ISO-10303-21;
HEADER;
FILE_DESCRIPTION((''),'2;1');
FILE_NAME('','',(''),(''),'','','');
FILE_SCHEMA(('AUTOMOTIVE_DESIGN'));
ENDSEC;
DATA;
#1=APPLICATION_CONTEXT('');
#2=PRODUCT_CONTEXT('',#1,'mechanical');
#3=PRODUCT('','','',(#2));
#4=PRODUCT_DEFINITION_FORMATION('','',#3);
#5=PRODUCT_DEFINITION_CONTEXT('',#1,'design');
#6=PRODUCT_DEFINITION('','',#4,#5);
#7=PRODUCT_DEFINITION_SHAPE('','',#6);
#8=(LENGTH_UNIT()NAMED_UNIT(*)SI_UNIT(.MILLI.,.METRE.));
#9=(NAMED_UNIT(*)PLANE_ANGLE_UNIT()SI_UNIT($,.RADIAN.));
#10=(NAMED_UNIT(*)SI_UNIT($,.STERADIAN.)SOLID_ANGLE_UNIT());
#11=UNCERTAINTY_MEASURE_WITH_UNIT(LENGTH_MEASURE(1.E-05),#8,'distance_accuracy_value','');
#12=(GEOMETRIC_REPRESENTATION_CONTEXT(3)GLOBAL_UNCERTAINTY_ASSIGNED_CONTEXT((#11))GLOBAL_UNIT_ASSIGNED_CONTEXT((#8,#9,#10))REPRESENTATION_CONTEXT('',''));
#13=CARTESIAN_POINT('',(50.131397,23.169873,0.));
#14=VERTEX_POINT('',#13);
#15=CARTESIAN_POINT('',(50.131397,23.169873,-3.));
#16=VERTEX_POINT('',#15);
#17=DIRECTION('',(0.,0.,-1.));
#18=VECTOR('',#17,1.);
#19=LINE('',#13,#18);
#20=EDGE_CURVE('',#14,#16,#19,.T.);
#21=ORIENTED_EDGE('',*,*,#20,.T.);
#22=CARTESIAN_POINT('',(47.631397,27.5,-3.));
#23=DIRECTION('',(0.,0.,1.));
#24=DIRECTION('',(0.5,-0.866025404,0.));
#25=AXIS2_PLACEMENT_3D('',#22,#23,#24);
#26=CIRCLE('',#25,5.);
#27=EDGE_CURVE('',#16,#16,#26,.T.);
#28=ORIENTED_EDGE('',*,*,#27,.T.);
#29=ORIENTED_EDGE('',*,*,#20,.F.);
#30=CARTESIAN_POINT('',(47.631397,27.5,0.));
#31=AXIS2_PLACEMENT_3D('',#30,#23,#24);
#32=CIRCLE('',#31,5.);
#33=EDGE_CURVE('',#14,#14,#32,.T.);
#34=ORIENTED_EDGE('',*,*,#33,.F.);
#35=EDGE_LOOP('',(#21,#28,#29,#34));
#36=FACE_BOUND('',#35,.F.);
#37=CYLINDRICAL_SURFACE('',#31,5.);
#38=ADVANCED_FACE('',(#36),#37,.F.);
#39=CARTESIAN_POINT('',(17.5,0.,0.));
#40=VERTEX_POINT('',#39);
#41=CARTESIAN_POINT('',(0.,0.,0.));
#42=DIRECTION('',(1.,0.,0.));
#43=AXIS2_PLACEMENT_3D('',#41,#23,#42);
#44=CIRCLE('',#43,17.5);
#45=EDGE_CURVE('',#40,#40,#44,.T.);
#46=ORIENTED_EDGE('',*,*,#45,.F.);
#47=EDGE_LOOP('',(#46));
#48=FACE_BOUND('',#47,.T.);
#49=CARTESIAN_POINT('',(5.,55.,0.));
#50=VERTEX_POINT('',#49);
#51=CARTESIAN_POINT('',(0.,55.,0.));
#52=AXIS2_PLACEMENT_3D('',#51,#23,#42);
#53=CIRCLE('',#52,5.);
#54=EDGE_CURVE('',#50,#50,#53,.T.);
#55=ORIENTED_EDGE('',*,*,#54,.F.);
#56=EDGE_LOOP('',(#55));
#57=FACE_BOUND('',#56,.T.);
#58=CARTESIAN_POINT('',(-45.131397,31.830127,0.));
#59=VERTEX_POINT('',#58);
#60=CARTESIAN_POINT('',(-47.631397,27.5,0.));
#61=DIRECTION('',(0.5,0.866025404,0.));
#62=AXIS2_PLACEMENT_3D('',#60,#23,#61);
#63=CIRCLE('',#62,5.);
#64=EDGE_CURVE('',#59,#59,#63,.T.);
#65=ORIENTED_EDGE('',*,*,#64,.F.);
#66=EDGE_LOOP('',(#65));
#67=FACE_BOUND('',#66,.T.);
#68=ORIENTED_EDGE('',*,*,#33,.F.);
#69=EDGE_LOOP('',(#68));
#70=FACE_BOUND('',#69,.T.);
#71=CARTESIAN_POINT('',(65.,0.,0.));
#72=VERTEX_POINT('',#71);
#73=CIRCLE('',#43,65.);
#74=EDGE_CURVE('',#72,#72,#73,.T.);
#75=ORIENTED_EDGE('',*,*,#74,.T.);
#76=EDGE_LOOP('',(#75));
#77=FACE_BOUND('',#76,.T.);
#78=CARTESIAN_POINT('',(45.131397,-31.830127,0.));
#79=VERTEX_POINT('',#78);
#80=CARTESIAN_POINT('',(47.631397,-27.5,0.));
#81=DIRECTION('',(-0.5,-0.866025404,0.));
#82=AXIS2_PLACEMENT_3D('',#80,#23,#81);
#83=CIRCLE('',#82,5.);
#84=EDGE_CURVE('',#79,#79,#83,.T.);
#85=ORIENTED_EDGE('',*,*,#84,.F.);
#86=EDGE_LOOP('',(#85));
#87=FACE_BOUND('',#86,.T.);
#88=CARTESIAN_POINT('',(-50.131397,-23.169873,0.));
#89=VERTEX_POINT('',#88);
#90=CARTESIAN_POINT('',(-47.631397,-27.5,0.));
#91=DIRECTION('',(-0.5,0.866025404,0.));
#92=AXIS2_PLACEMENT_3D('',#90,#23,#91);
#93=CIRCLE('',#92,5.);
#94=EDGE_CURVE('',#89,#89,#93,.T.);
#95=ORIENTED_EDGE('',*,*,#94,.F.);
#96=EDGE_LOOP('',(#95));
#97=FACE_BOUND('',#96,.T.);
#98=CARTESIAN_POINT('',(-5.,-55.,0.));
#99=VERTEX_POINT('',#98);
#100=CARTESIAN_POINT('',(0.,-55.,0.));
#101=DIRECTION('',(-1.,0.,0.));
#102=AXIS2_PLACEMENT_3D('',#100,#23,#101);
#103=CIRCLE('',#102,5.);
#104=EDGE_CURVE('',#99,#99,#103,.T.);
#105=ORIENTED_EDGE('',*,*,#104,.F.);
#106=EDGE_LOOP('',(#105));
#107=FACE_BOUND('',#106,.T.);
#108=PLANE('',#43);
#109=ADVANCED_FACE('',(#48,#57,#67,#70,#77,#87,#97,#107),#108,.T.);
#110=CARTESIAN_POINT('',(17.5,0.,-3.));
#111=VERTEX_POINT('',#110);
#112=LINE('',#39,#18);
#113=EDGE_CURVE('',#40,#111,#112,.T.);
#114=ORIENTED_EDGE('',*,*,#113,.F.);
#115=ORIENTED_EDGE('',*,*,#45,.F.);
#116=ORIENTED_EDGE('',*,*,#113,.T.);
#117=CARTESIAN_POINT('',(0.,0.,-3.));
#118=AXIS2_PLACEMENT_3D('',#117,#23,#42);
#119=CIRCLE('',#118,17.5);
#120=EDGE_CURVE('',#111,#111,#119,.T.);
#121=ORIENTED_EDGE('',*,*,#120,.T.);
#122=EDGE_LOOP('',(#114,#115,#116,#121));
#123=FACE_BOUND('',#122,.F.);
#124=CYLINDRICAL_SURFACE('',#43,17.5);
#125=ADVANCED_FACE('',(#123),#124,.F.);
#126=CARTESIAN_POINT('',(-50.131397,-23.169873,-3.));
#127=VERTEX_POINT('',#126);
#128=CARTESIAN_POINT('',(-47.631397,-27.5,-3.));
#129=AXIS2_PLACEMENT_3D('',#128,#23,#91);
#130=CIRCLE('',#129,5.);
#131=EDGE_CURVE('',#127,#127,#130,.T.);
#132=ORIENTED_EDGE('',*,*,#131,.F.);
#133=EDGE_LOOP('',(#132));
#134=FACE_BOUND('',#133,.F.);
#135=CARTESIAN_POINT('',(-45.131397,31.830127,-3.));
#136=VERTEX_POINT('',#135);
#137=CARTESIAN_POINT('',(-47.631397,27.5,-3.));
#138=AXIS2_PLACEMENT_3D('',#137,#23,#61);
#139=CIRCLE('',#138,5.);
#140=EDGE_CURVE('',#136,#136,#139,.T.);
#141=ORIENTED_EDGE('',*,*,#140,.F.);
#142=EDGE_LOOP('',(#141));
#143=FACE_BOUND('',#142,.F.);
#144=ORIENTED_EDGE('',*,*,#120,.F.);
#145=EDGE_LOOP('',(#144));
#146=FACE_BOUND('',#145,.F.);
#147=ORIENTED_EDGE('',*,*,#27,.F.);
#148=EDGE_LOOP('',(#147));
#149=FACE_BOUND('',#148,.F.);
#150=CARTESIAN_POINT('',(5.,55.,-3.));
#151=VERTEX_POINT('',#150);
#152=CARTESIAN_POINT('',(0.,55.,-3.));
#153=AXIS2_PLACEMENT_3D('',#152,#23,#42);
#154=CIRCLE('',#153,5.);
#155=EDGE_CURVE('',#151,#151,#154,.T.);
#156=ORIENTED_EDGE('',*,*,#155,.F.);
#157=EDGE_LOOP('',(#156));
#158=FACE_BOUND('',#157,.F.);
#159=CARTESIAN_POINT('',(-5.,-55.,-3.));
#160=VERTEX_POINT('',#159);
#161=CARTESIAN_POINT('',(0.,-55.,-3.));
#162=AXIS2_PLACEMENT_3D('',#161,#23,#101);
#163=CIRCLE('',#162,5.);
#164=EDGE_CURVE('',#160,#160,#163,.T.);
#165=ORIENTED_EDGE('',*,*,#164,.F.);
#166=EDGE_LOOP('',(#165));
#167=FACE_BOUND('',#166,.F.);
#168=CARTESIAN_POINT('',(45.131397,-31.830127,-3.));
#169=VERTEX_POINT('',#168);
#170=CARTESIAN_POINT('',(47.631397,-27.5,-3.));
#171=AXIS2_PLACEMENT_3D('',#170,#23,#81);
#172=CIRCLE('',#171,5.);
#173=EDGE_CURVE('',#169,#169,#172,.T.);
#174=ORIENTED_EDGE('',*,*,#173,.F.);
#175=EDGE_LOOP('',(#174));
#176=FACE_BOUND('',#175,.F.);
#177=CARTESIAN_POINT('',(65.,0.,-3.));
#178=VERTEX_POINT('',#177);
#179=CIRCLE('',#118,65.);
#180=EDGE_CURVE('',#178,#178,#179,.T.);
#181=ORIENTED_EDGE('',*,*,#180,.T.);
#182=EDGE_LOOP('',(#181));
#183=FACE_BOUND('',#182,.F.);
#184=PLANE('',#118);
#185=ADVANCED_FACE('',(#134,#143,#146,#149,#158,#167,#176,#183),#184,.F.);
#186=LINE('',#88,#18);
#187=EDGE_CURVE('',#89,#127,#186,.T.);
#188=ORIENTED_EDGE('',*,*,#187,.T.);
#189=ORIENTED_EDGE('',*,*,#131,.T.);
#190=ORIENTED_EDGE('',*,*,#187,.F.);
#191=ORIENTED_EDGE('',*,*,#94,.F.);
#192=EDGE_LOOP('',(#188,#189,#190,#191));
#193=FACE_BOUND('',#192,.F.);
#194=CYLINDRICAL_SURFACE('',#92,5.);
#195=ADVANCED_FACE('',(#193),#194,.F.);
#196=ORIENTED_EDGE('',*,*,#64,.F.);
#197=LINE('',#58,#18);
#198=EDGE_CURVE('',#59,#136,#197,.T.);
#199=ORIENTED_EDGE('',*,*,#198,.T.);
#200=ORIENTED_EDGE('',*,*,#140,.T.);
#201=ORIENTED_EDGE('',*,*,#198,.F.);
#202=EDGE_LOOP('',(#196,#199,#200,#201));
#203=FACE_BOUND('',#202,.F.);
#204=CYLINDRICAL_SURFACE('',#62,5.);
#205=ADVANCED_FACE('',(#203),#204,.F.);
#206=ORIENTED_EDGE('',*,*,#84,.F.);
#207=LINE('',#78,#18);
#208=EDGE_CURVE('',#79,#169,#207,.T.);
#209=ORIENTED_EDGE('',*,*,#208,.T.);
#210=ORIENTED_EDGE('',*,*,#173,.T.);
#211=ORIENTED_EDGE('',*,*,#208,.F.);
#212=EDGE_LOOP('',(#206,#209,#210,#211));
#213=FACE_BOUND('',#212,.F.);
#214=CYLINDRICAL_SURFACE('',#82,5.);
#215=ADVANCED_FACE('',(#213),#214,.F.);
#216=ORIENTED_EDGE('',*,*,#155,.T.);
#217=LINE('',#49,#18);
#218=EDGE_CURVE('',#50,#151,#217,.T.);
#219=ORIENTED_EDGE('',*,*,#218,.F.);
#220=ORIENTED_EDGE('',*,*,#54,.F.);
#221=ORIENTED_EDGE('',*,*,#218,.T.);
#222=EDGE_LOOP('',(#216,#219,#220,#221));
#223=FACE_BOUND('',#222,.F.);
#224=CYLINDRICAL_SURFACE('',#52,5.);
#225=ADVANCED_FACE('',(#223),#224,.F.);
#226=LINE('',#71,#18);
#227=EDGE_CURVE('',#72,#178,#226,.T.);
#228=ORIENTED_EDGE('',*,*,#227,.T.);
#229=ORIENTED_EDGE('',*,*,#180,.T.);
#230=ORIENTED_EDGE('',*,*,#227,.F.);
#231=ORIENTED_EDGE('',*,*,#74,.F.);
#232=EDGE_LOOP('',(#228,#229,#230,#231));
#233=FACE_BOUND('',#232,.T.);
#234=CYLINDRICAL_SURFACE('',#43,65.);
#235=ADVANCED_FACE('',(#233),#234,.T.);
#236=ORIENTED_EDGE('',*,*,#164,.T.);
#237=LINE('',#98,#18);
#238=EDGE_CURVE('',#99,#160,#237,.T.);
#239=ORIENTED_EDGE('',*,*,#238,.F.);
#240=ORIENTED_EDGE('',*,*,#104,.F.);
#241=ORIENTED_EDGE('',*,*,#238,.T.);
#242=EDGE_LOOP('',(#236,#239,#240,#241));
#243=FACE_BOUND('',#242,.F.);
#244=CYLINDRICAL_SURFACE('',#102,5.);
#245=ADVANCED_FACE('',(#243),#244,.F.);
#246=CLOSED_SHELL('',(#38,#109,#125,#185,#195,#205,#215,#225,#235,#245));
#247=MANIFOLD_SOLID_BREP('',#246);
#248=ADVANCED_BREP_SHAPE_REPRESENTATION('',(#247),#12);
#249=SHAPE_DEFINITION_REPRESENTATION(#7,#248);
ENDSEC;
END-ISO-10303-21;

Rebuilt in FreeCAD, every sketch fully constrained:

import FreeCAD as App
import Part
import Sketcher
Q = App.Units.Quantity

doc = App.newDocument("Part")
body = doc.addObject("PartDesign::Body", "Body")

sketch1 = body.newObject("Sketcher::SketchObject", "Sketch")
sketch1.AttachmentSupport = (doc.getObject("XY_Plane"), [""])
sketch1.MapMode = "FlatFace"
sketch1.addGeometry(Part.Circle(App.Vector(0, 0, 0), App.Vector(0, 0, 1), 65), False)
sketch1.addConstraint([
    Sketcher.Constraint("Coincident", 0, 3, -1, 1),
    Sketcher.Constraint("Diameter", 0, Q("130 mm")),
])
pad1 = body.newObject("PartDesign::Pad", "Pad")
pad1.Profile = sketch1
pad1.Length = 3
pad1.Reversed = True

sketch2 = body.newObject("Sketcher::SketchObject", "Sketch001")
sketch2.AttachmentSupport = (doc.getObject("XY_Plane"), [""])
sketch2.MapMode = "FlatFace"
sketch2.addGeometry(Part.Circle(App.Vector(0, 55, 0), App.Vector(0, 0, 1), 5), False)
sketch2.addConstraint([
    Sketcher.Constraint("PointOnObject", 0, 3, -2),
    Sketcher.Constraint("Diameter", 0, Q("10 mm")),
    Sketcher.Constraint("DistanceY", -1, 1, 0, 3, Q("55 mm")),
])
pocket1 = body.newObject("PartDesign::Pocket", "Pocket")
pocket1.Profile = sketch2
pocket1.Type = "ThroughAll"
doc.recompute()

polarpattern = body.newObject("PartDesign::PolarPattern", "PolarPattern")
polarpattern.Originals = [pocket1]
polarpattern.Axis = (doc.getObject("Z_Axis"), [""])
polarpattern.Angle = 360
polarpattern.Occurrences = 6
body.Tip = polarpattern

sketch3 = body.newObject("Sketcher::SketchObject", "Sketch002")
sketch3.AttachmentSupport = (doc.getObject("XY_Plane"), [""])
sketch3.MapMode = "FlatFace"
sketch3.addGeometry(Part.Circle(App.Vector(0, 0, 0), App.Vector(0, 0, 1), 18), False)
sketch3.addConstraint([
    Sketcher.Constraint("Coincident", 0, 3, -1, 1),
    Sketcher.Constraint("Diameter", 0, Q("35 mm")),
])
pocket2 = body.newObject("PartDesign::Pocket", "Pocket001")
pocket2.Profile = sketch3
pocket2.Type = "ThroughAll"

doc.recompute()
